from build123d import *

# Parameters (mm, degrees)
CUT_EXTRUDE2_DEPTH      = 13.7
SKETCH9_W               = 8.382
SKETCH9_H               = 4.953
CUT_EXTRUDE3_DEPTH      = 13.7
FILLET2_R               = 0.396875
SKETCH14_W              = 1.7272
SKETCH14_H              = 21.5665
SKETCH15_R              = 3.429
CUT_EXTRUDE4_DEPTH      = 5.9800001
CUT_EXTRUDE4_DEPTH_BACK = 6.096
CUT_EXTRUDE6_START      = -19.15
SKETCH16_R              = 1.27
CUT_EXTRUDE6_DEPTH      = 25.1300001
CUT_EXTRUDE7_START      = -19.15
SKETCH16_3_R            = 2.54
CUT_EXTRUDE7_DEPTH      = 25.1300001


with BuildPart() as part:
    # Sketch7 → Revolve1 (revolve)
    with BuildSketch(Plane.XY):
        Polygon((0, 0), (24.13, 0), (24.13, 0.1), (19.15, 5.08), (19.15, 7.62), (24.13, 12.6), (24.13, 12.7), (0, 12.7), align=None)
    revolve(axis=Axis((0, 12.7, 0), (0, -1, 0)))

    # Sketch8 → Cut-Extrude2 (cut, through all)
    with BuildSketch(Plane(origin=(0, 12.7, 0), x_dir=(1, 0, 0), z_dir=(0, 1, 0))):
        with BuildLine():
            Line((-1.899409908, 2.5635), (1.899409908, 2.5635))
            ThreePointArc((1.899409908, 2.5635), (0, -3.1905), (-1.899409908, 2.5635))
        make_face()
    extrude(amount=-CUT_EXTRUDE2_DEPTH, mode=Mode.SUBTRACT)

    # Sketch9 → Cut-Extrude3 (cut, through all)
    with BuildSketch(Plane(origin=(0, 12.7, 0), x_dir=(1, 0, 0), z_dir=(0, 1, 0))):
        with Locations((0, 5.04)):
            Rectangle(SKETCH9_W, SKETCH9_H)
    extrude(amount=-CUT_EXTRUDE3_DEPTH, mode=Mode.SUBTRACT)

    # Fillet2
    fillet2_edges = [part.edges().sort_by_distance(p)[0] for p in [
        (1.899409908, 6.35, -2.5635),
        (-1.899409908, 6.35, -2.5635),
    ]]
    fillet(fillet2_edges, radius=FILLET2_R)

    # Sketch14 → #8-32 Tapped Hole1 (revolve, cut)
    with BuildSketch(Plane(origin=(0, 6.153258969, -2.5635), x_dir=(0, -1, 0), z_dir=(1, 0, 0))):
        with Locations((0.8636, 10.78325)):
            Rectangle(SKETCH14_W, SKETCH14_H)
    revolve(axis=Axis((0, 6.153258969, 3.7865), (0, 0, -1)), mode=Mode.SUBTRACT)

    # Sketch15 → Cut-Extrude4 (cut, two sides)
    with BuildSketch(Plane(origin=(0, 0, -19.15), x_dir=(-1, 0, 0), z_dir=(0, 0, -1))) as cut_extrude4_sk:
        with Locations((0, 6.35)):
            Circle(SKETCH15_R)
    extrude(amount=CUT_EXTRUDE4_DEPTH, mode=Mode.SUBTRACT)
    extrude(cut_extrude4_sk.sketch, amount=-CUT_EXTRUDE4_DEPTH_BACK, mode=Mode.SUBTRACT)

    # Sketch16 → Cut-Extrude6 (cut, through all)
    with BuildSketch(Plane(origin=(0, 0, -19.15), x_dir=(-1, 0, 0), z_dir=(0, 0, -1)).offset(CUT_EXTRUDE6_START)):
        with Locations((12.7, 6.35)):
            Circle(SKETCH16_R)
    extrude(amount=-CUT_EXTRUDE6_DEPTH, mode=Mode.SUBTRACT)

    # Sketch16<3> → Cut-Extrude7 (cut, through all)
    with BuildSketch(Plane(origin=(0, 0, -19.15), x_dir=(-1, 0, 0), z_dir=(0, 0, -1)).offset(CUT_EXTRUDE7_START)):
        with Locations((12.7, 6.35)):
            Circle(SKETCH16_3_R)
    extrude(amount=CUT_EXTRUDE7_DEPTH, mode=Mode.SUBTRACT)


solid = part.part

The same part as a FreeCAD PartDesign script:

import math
import FreeCAD as App
import Part
import Sketcher

V = App.Vector
Q = App.Units.Quantity


def edges_at(feature, points):
    """Names of the edges that pass closest to the given points."""
    edges = feature.Shape.Edges
    near = lambda p: min(range(len(edges)), key=lambda i: edges[i].distToShape(Part.Vertex(*p))[0])
    return sorted({f"Edge{near(p) + 1}" for p in points})


def add_polygon(sketch, points):
    """Adds a closed chain of lines whose ends are joined by coincident constraints."""
    first, n = sketch.GeometryCount, len(points)
    for a, b in zip(points, points[1:] + points[:1]):
        sketch.addGeometry(Part.LineSegment(App.Vector(*a, 0), App.Vector(*b, 0)), False)
    for i in range(n):
        sketch.addConstraint(Sketcher.Constraint("Coincident", first + i, 2, first + (i + 1) % n, 1))

doc = App.newDocument("Part")
body = doc.addObject("PartDesign::Body", "Body")

sketch1 = doc.addObject("Sketcher::SketchObject", "Sketch")
body.addObject(sketch1)
sketch1.AttachmentSupport = (doc.XY_Plane, [""])
sketch1.MapMode = "FlatFace"
add_polygon(sketch1, [(0, 0), (24.13, 0), (24.13, 0.1), (19.15, 5.08), (19.15, 7.62), (24.13, 12.6), (24.13, 12.7), (0, 12.7)])
sketch1.addConstraint([
    Sketcher.Constraint("Horizontal", 0),
    Sketcher.Constraint("Vertical", 1),
    Sketcher.Constraint("Vertical", 3),
    Sketcher.Constraint("Vertical", 5),
    Sketcher.Constraint("Horizontal", 6),
    Sketcher.Constraint("Vertical", 7),
    Sketcher.Constraint("Coincident", 7, 2, -1, 1),
    Sketcher.Constraint("Perpendicular", 2, 4),
    Sketcher.Constraint("Vertical", 1, 2, 4, 2),
    Sketcher.Constraint("Equal", 1, 5),
    Sketcher.Constraint("Equal", 2, 4),
    Sketcher.Constraint("DistanceY", 3, 1, 3, 2, Q("0.1 in")),
    Sketcher.Constraint("DistanceY", 7, 2, 7, 1, Q("0.5 in")),
    Sketcher.Constraint("DistanceX", 0, 1, 0, 2, Q("0.95 in")),
    Sketcher.Constraint("DistanceY", 1, 1, 1, 2, 0.1),
])
revolution = doc.addObject("PartDesign::Revolution", "Revolution")
body.addObject(revolution)
revolution.Profile = sketch1
revolution.ReferenceAxis = (sketch1, ["V_Axis"])
revolution.Angle = 360

sketch2 = doc.addObject("Sketcher::SketchObject", "Sketch001")
body.addObject(sketch2)
sketch2.AttachmentSupport = (doc.XZ_Plane, [""])
sketch2.MapMode = "FlatFace"
sketch2.AttachmentOffset = App.Placement(V(0, 0, -0.5 * 25.4), App.Rotation())
sketch2.addGeometry([
    Part.LineSegment(V(1.89941, -2.5635, 0), V(-1.89941, -2.5635, 0)),
    Part.ArcOfCircle(Part.Circle(V(0, 0, 0), V(0, 0, 1), 3.1905), math.radians(-53.463626), math.radians(233.463626)),
], False)
sketch2.addConstraint([
    Sketcher.Constraint("Coincident", 0, 1, 1, 1),
    Sketcher.Constraint("Coincident", 1, 2, 0, 2),
    Sketcher.Constraint("Horizontal", 0),
    Sketcher.Constraint("Coincident", 1, 3, -1, 1),
    Sketcher.Constraint("Radius", 1, 3.1905),
    Sketcher.Constraint("DistanceX", 0, 2, 0, 1, 3.79882),
])
pocket1 = doc.addObject("PartDesign::Pocket", "Pocket")
body.addObject(pocket1)
pocket1.Profile = sketch2
pocket1.Type = "ThroughAll"
pocket1.Reversed = True

sketch3 = doc.addObject("Sketcher::SketchObject", "Sketch002")
body.addObject(sketch3)
sketch3.AttachmentSupport = (doc.XZ_Plane, [""])
sketch3.MapMode = "FlatFace"
sketch3.AttachmentOffset = App.Placement(V(0, 0, -0.5 * 25.4), App.Rotation())
add_polygon(sketch3, [(-4.191, -7.5165), (-4.191, -2.5635), (4.191, -2.5635), (4.191, -7.5165)])
sketch3.addConstraint([
    Sketcher.Constraint("Vertical", 0),
    Sketcher.Constraint("Horizontal", 1),
    Sketcher.Constraint("Vertical", 2),
    Sketcher.Constraint("Horizontal", 3),
    Sketcher.Constraint("DistanceX", 1, 1, 1, 2, Q("0.33 in")),
    Sketcher.Constraint("DistanceY", 0, 1, 0, 2, Q("0.195 in")),
    Sketcher.Constraint("DistanceX", 0, 2, -1, 1, Q("0.165 in")),
    Sketcher.Constraint("DistanceY", 0, 2, -1, 1, 2.5635),
])
pocket2 = doc.addObject("PartDesign::Pocket", "Pocket001")
body.addObject(pocket2)
pocket2.Profile = sketch3
pocket2.Type = "ThroughAll"
pocket2.Reversed = True
doc.recompute()

fillet = doc.addObject("PartDesign::Fillet", "Fillet")
body.addObject(fillet)
fillet.Base = (pocket2, edges_at(pocket2, [(1.899, 6.35, -2.563), (-1.899, 6.35, -2.563)]))
fillet.Radius = Q("0.015625 in")

sketch4 = doc.addObject("Sketcher::SketchObject", "Sketch003")
body.addObject(sketch4)
sketch4.AttachmentSupport = (doc.YZ_Plane, [""])
sketch4.MapMode = "FlatFace"
add_polygon(sketch4, [(6.153259, -24.13), (6.153259, -2.5635), (4.426059, -2.5635), (4.426059, -24.13)])
sketch4.addGeometry(Part.LineSegment(V(6.153259, -2.5635, 0), V(6.153259, -24.13, 0)), True)
sketch4.addConstraint([
    Sketcher.Constraint("Vertical", 0),
    Sketcher.Constraint("Horizontal", 1),
    Sketcher.Constraint("Vertical", 2),
    Sketcher.Constraint("Horizontal", 3),
    Sketcher.Constraint("Vertical", 4),
    Sketcher.Constraint("Coincident", 4, 1, 0, 2),
    Sketcher.Constraint("Horizontal", 2, 2, 4, 2),
    Sketcher.Constraint("DistanceX", 1, 2, 1, 1, Q("0.068 in")),
    Sketcher.Constraint("DistanceY", 2, 2, -1, 1, Q("0.95 in")),
    Sketcher.Constraint("DistanceY", 0, 1, 0, 2, 21.5665),
    Sketcher.Constraint("DistanceX", -1, 1, 0, 2, 6.153259),
])
groove = doc.addObject("PartDesign::Groove", "Groove")
body.addObject(groove)
groove.Profile = sketch4
groove.ReferenceAxis = (sketch4, ["Axis0"])
groove.Angle = 360

sketch5 = doc.addObject("Sketcher::SketchObject", "Sketch004")
body.addObject(sketch5)
sketch5.AttachmentSupport = (doc.XY_Plane, [""])
sketch5.MapMode = "FlatFace"
sketch5.AttachmentOffset = App.Placement(V(0, 0, -19.15), App.Rotation())
sketch5.addGeometry(Part.Circle(V(0, 6.35, 0), V(0, 0, 1), 3.429), False)
sketch5.addConstraint([
    Sketcher.Constraint("PointOnObject", 0, 3, -2),
    Sketcher.Constraint("Diameter", 0, Q("0.27 in")),
    Sketcher.Constraint("DistanceY", -1, 1, 0, 3, Q("0.25 in")),
])
pocket3 = doc.addObject("PartDesign::Pocket", "Pocket002")
body.addObject(pocket3)
pocket3.Profile = sketch5
pocket3.Type = "TwoLengths"
pocket3.Length = 5.98
pocket3.Length2 = Q("0.24 in")

sketch6 = doc.addObject("Sketcher::SketchObject", "Sketch005")
body.addObject(sketch6)
sketch6.AttachmentSupport = (doc.XY_Plane, [""])
sketch6.MapMode = "FlatFace"
sketch6.addGeometry(Part.Circle(V(-12.7, 6.35, 0), V(0, 0, 1), 1.27), False)
sketch6.addConstraint([
    Sketcher.Constraint("Diameter", 0, Q("0.1 in")),
    Sketcher.Constraint("DistanceX", 0, 3, -1, 1, Q("0.5 in")),
    Sketcher.Constraint("DistanceY", -1, 1, 0, 3, Q("0.25 in")),
])
pocket4 = doc.addObject("PartDesign::Pocket", "Pocket003")
body.addObject(pocket4)
pocket4.Profile = sketch6
pocket4.Type = "ThroughAll"
pocket4.Reversed = True

sketch7 = doc.addObject("Sketcher::SketchObject", "Sketch006")
body.addObject(sketch7)
sketch7.AttachmentSupport = (doc.XY_Plane, [""])
sketch7.MapMode = "FlatFace"
sketch7.addGeometry(Part.Circle(V(-12.7, 6.35, 0), V(0, 0, 1), 2.54), False)
sketch7.addConstraint([
    Sketcher.Constraint("Diameter", 0, Q("0.2 in")),
    Sketcher.Constraint("DistanceX", 0, 3, -1, 1, Q("0.5 in")),
    Sketcher.Constraint("DistanceY", -1, 1, 0, 3, Q("0.25 in")),
])
pocket5 = doc.addObject("PartDesign::Pocket", "Pocket004")
body.addObject(pocket5)
pocket5.Profile = sketch7
pocket5.Type = "ThroughAll"

doc.recompute()
